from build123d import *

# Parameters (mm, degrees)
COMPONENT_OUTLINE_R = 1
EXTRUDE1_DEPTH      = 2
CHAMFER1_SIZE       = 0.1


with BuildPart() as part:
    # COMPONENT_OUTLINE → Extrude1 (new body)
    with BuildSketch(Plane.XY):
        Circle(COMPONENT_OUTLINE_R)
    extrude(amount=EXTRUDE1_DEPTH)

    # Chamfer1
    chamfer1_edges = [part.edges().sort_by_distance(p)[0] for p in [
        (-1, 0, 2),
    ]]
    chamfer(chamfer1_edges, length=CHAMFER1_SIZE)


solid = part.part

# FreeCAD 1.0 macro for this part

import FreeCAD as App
import Part
import Sketcher
from FreeCAD import Vector
Q = App.Units.Quantity


def edges_at(feature, points):
    """Names of the edges that pass closest to the given points."""
    edges = feature.Shape.Edges
    near = lambda p: min(range(len(edges)), key=lambda i: edges[i].distToShape(Part.Vertex(*p))[0])
    return sorted({f"Edge{near(p) + 1}" for p in points})

doc = App.newDocument("Part")
body = doc.addObject("PartDesign::Body", "Body")

# Sketch on XY plane
sketch1 = body.newObject("Sketcher::SketchObject", "Sketch")
sketch1.AttachmentSupport = (doc.getObject("XY_Plane"), [""])
sketch1.MapMode = "FlatFace"
sketch1.addGeometry(Part.Circle(Vector(0, 0, 0), Vector(0, 0, 1), 1), False)
sketch1.addConstraint([
    Sketcher.Constraint("Coincident", 0, 3, -1, 1),
    Sketcher.Constraint("Diameter", 0, Q("2 mm")),
])
pad1 = body.newObject("PartDesign::Pad", "Pad")
pad1.Profile = sketch1
pad1.Length = 2
doc.recompute()

chamfer = body.newObject("PartDesign::Chamfer", "Chamfer")
chamfer.Base = (pad1, edges_at(pad1, [(-1, 0, 2)]))
chamfer.Size = 0.1

doc.recompute()
